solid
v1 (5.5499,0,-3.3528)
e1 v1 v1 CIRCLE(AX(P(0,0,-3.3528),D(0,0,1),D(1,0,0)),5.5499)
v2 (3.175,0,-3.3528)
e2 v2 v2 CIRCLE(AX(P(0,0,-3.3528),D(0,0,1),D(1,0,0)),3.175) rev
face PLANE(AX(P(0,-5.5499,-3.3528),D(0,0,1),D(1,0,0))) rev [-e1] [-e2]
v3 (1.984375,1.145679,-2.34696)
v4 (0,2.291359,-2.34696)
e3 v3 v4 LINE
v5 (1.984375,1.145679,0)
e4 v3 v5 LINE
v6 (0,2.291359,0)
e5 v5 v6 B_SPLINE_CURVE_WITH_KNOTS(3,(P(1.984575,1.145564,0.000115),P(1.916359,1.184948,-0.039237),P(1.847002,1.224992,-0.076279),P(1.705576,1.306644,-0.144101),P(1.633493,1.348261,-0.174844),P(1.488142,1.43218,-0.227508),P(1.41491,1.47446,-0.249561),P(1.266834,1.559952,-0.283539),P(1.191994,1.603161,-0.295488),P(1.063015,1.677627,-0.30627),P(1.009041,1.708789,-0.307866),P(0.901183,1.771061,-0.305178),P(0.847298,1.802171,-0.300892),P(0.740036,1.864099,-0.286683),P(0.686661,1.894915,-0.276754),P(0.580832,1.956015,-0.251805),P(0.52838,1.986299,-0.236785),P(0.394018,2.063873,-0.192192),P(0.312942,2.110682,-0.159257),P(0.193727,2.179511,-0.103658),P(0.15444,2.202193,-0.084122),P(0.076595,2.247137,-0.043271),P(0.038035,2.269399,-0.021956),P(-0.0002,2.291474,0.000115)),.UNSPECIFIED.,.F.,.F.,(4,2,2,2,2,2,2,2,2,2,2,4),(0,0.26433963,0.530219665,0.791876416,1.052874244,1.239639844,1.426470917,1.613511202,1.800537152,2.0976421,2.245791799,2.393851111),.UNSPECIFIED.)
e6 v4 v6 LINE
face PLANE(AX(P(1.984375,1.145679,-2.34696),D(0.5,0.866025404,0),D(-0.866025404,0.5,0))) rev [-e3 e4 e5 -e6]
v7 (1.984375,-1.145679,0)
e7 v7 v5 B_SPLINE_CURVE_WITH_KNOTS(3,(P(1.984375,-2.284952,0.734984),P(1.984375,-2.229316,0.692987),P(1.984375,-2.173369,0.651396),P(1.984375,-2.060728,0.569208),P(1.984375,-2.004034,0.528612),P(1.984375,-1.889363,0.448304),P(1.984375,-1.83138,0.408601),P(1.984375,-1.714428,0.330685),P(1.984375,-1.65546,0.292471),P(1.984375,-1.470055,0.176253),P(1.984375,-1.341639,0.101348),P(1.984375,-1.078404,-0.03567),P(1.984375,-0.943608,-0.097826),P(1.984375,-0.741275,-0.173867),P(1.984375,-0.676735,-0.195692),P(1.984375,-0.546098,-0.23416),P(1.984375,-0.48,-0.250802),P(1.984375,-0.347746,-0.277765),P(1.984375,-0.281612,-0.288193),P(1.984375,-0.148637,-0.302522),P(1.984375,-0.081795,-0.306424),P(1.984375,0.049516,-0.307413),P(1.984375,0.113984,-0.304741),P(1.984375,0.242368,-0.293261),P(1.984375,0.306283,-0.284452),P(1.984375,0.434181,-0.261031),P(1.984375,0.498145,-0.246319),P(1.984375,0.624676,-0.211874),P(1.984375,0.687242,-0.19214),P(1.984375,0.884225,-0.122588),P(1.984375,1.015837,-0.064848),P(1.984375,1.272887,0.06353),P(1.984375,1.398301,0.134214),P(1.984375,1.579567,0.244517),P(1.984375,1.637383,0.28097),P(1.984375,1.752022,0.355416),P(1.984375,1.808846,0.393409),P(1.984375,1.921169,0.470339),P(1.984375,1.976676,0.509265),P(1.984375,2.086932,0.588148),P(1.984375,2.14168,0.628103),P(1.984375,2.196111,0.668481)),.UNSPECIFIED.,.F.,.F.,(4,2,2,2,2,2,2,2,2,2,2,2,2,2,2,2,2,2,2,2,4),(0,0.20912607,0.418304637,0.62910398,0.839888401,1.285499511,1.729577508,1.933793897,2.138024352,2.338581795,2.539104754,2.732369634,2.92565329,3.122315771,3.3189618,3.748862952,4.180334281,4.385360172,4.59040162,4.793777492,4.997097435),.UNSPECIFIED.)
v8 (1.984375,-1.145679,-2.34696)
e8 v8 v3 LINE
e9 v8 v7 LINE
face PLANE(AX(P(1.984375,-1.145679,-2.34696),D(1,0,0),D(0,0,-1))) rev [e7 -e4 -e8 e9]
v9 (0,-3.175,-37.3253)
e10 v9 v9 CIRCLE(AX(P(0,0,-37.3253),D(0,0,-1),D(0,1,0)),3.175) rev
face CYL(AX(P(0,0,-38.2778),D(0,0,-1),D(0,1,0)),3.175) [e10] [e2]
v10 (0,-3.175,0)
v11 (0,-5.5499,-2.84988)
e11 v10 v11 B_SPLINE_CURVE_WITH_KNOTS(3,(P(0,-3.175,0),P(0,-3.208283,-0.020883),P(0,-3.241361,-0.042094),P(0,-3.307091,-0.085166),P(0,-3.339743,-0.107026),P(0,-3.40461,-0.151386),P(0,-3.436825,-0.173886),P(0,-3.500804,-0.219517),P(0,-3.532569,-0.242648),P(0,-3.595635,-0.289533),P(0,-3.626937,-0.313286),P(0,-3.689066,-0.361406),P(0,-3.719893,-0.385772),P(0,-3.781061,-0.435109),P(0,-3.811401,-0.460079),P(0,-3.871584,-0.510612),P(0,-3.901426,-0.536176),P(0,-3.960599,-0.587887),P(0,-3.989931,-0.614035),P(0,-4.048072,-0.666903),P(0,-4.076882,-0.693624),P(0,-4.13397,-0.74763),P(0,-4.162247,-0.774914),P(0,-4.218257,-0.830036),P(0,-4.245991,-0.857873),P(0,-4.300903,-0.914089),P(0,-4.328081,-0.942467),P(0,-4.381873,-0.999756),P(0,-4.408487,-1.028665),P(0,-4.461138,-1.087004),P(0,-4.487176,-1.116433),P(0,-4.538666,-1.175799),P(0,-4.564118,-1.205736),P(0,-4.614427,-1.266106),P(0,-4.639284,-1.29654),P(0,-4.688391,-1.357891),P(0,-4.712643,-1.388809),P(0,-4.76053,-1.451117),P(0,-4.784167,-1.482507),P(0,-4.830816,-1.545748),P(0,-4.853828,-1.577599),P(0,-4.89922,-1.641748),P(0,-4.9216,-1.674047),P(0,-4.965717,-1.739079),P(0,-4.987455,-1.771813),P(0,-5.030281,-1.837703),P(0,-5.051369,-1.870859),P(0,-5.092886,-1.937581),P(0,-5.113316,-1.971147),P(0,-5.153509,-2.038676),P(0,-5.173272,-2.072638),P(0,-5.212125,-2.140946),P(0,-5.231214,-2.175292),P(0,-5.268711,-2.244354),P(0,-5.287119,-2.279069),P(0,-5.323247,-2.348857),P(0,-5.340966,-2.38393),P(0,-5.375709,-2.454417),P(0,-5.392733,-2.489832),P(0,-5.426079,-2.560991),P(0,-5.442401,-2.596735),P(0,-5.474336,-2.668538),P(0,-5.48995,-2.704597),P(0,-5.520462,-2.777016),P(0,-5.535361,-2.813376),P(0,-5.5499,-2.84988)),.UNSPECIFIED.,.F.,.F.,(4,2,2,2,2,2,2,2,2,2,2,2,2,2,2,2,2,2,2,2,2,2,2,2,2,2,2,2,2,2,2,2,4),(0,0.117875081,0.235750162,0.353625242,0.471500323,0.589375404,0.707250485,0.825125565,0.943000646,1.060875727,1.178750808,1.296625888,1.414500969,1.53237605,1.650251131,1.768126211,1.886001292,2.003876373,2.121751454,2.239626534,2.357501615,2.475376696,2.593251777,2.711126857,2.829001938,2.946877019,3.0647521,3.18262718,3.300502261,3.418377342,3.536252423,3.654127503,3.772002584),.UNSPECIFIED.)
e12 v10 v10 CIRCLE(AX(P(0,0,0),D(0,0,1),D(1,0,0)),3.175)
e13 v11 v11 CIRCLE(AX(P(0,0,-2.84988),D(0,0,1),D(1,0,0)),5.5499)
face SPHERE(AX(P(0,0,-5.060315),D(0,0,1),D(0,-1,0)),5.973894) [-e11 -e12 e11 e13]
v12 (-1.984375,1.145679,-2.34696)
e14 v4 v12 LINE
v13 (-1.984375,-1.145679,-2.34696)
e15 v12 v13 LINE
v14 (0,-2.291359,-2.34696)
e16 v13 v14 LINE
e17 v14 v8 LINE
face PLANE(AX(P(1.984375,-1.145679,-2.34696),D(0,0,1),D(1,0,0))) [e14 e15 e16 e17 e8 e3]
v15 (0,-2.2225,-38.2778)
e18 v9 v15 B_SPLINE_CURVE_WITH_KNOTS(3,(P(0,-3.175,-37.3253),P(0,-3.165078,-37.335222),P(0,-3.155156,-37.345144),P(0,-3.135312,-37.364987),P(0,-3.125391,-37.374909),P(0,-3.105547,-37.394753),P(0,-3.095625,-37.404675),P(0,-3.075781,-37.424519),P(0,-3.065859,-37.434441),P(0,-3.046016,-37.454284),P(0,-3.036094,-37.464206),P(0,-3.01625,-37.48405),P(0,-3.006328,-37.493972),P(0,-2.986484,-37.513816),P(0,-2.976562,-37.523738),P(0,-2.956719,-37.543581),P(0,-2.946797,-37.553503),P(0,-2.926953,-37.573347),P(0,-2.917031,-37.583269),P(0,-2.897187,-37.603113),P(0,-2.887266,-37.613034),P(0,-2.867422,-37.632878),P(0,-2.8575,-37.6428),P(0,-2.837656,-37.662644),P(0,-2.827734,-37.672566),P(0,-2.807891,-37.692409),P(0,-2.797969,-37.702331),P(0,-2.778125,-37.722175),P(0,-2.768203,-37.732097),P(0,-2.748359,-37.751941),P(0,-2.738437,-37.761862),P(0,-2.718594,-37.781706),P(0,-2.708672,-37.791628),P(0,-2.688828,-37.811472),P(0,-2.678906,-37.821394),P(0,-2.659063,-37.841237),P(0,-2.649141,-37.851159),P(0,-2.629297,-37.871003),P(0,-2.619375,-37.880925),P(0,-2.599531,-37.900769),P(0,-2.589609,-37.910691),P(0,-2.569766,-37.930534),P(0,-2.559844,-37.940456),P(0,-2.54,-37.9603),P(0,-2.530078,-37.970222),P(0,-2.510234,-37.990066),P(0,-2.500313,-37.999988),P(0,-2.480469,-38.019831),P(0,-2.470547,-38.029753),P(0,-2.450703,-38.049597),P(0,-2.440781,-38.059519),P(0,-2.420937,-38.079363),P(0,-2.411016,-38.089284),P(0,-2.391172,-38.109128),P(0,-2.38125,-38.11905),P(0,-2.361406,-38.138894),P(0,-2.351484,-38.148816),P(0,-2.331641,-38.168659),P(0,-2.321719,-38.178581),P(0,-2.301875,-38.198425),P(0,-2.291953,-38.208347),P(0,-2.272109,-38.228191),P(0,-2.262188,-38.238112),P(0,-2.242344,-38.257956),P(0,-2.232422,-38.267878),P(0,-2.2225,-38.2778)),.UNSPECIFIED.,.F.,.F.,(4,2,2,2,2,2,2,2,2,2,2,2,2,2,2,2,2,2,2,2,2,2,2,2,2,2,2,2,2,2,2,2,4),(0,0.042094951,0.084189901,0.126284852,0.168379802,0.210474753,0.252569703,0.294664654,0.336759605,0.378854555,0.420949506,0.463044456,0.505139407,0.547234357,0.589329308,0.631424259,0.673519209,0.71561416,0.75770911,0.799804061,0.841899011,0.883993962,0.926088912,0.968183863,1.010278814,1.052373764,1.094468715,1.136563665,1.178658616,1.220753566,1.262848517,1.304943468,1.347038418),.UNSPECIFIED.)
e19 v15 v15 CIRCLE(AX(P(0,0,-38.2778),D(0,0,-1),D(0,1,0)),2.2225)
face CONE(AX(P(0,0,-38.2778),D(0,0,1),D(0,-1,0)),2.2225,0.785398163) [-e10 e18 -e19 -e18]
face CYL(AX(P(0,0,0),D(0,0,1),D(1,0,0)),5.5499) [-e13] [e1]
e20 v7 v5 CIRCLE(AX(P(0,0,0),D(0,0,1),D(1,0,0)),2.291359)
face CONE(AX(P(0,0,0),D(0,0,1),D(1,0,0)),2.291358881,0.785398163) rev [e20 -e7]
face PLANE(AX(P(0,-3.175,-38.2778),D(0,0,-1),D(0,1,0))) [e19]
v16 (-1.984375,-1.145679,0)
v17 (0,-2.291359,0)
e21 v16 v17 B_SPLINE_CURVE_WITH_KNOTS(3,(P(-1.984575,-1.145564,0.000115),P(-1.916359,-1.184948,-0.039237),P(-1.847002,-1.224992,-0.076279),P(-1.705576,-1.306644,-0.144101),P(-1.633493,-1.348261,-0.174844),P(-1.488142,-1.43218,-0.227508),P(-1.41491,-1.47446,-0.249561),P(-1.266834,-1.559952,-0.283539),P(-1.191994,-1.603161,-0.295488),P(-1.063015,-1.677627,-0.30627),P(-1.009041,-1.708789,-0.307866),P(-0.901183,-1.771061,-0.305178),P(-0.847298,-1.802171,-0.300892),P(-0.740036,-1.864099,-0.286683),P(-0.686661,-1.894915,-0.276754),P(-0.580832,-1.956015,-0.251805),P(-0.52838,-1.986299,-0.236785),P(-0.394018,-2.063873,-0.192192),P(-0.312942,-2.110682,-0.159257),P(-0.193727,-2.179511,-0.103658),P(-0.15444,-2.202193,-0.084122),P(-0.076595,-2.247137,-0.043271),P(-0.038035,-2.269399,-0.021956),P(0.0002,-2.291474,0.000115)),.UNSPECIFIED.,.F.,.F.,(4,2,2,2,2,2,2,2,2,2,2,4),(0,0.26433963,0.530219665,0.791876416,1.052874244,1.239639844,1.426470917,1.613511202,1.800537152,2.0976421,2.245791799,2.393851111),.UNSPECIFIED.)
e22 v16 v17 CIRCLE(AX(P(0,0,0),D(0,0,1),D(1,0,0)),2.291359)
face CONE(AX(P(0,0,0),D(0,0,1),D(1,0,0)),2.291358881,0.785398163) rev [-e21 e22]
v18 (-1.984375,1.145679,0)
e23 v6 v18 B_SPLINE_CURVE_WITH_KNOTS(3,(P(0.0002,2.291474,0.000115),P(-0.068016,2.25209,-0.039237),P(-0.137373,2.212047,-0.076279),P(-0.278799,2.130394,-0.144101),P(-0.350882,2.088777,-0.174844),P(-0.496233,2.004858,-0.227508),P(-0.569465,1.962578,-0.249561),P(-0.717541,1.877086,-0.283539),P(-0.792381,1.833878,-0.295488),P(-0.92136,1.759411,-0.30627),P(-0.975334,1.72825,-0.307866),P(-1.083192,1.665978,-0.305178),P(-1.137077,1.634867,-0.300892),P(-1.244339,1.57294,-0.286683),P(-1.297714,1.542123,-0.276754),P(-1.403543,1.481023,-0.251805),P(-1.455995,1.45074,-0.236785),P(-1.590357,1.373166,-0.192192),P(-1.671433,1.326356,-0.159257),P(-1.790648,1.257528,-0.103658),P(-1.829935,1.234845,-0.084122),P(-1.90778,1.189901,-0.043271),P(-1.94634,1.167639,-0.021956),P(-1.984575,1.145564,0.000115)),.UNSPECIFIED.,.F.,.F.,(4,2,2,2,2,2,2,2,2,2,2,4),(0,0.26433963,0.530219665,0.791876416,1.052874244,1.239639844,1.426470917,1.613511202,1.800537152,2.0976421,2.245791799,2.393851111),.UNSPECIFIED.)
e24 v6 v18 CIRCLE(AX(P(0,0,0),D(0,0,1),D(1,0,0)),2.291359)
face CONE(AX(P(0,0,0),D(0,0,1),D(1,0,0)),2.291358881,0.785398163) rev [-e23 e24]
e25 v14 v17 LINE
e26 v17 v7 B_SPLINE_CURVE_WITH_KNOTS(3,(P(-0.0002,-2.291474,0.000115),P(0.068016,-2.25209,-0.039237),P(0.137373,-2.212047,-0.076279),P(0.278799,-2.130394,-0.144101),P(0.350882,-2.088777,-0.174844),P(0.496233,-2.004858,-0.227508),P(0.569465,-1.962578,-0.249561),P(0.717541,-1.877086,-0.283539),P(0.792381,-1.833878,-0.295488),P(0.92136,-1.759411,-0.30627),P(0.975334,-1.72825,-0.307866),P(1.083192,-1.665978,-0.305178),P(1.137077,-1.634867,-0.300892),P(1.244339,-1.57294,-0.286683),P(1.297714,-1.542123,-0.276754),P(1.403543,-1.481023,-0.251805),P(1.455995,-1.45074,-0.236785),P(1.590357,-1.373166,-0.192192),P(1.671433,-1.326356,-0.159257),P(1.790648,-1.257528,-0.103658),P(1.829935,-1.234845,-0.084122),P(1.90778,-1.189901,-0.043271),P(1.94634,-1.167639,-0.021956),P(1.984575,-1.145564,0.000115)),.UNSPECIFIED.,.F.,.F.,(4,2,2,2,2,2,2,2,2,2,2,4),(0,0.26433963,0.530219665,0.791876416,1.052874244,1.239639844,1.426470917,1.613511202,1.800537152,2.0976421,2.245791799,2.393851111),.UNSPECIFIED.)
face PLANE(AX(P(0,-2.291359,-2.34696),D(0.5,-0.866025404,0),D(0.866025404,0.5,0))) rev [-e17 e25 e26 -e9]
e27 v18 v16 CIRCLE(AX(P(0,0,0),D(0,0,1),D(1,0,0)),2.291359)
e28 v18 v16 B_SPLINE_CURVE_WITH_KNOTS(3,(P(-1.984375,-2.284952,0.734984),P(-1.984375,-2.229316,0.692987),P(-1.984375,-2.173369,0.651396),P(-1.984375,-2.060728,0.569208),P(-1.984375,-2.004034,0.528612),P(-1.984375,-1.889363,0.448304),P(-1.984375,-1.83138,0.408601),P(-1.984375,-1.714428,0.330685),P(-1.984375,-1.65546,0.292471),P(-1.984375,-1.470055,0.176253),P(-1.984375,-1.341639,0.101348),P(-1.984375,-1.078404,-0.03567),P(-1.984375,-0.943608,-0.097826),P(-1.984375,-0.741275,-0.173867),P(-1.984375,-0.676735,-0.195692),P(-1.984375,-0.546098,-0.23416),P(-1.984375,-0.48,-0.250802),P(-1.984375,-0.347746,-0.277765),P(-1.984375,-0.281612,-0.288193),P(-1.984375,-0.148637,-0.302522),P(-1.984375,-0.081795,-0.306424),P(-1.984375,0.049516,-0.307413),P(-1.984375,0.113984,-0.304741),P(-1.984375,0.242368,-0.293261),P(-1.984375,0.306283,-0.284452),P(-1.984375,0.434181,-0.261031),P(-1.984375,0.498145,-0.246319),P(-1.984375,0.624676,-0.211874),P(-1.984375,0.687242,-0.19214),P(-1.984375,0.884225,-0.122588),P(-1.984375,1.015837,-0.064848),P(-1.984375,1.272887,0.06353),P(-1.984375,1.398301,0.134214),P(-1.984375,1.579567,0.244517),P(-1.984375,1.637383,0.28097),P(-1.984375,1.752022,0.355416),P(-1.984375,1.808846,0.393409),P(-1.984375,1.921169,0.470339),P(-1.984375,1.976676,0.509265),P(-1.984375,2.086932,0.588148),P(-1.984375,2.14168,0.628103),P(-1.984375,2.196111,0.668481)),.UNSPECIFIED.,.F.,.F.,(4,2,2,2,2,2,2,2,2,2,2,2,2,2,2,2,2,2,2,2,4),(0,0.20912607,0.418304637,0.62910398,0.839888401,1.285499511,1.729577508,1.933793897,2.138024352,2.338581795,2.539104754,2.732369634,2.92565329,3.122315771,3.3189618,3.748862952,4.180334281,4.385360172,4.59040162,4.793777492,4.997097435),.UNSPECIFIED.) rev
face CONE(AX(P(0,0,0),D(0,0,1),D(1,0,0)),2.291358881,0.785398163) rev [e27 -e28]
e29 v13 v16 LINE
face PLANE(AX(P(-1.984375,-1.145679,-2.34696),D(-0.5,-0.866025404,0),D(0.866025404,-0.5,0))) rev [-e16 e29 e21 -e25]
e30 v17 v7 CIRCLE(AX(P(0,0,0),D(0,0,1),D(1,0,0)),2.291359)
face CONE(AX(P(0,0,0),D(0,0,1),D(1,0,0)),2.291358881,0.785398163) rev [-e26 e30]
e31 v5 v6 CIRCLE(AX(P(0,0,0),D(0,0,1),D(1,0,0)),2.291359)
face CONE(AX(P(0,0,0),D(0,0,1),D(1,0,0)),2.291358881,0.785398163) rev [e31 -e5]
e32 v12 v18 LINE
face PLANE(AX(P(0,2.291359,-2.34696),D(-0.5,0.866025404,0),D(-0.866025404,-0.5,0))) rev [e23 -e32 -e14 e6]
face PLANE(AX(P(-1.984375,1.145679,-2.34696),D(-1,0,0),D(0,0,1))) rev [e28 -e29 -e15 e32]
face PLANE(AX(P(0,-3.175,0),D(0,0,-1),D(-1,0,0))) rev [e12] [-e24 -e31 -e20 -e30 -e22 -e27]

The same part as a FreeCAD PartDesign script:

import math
import FreeCAD as App
import Part
import Sketcher

V = App.Vector
Q = App.Units.Quantity


def edges_at(feature, points):
    """Names of the edges that pass closest to the given points."""
    edges = feature.Shape.Edges
    near = lambda p: min(range(len(edges)), key=lambda i: edges[i].distToShape(Part.Vertex(*p))[0])
    return sorted({f"Edge{near(p) + 1}" for p in points})

doc = App.newDocument("Part")
params = doc.addObject("Spreadsheet::Sheet", "Params")
for row, (alias, value) in enumerate([
    ("sketch1_width", "0.125 in"),
    ("sketch1_height", "1.375 in"),
    ("revolution_angle", "360 deg"),
    ("chamfer_size", "0.0375 in"),
    ("sketch2_width", "0.125 in"),
    ("sketch2_height", "0.132 in"),
    ("revolution2_angle", "360 deg"),
    ("pocket1_length", "0.0924 in"),
    ("groove_angle", "360 deg"),
], start=1):
    params.set(f"A{row}", alias)
    params.set(f"B{row}", "=" + value)
    params.setAlias(f"B{row}", alias)

body = doc.addObject("PartDesign::Body", "Body")

sketch1 = doc.addObject("Sketcher::SketchObject", "Sketch")
body.addObject(sketch1)
sketch1.AttachmentSupport = (doc.YZ_Plane, [""])
sketch1.MapMode = "FlatFace"
sketch1.addGeometry(Part.LineSegment(V(3.2, -3.4, 0), V(0, -3.4, 0)), False)
sketch1.addGeometry(Part.LineSegment(V(0, -3.4, 0), V(0, -38.3, 0)), False)
sketch1.addGeometry(Part.LineSegment(V(0, -38.3, 0), V(3.2, -38.3, 0)), False)
sketch1.addGeometry(Part.LineSegment(V(3.2, -38.3, 0), V(3.2, -3.4, 0)), False)
sketch1.addConstraint(Sketcher.Constraint("Coincident", 0, 2, 1, 1))
sketch1.addConstraint(Sketcher.Constraint("Coincident", 1, 2, 2, 1))
sketch1.addConstraint(Sketcher.Constraint("Coincident", 2, 2, 3, 1))
sketch1.addConstraint(Sketcher.Constraint("Coincident", 3, 2, 0, 1))
sketch1.addConstraint(Sketcher.Constraint("Horizontal", 0))
sketch1.addConstraint(Sketcher.Constraint("Vertical", 1))
sketch1.addConstraint(Sketcher.Constraint("Horizontal", 2))
sketch1.addConstraint(Sketcher.Constraint("Vertical", 3))
sketch1.addConstraint(Sketcher.Constraint("PointOnObject", 0, 2, -2))
sketch1.addConstraint(Sketcher.Constraint("DistanceX", 0, 2, 0, 1, Q("0.125 in")))
sketch1.addConstraint(Sketcher.Constraint("DistanceY", 1, 2, 1, 1, Q("1.375 in")))
sketch1.addConstraint(Sketcher.Constraint("DistanceY", 0, 2, -1, 1, Q("0.132 in")))
sketch1.setExpression("Constraints[9]", "Params.sketch1_width")
sketch1.setExpression("Constraints[10]", "Params.sketch1_height")
revolution = doc.addObject("PartDesign::Revolution", "Revolution")
body.addObject(revolution)
revolution.Profile = sketch1
revolution.ReferenceAxis = (sketch1, ["V_Axis"])
revolution.setExpression("Angle", "Params.revolution_angle")
doc.recompute()

chamfer = doc.addObject("PartDesign::Chamfer", "Chamfer")
body.addObject(chamfer)
chamfer.Base = (revolution, edges_at(revolution, [(0, -3.175, -38.278)]))
chamfer.setExpression("Size", "Params.chamfer_size")

sketch2 = doc.addObject("Sketcher::SketchObject", "Sketch001")
body.addObject(sketch2)
sketch2.AttachmentSupport = (doc.YZ_Plane, [""])
sketch2.MapMode = "FlatFace"
sketch2.addGeometry(Part.LineSegment(V(5.5, -3.4, 0), V(5.5, -2.8, 0)), False)
sketch2.addGeometry(Part.ArcOfCircle(Part.Circle(V(0, -5.1, 0), V(0, 0, 1), 6), math.radians(22), math.radians(58)), False)
sketch2.addGeometry(Part.LineSegment(V(3.2, 0, 0), V(0, 0, 0)), False)
sketch2.addGeometry(Part.LineSegment(V(0, 0, 0), V(0, -3.4, 0)), False)
sketch2.addGeometry(Part.LineSegment(V(0, -3.4, 0), V(5.5, -3.4, 0)), False)
sketch2.addConstraint(Sketcher.Constraint("Coincident", 0, 2, 1, 1))
sketch2.addConstraint(Sketcher.Constraint("Coincident", 1, 2, 2, 1))
sketch2.addConstraint(Sketcher.Constraint("Coincident", 2, 2, 3, 1))
sketch2.addConstraint(Sketcher.Constraint("Coincident", 3, 2, 4, 1))
sketch2.addConstraint(Sketcher.Constraint("Coincident", 4, 2, 0, 1))
sketch2.addConstraint(Sketcher.Constraint("Vertical", 0))
sketch2.addConstraint(Sketcher.Constraint("Horizontal", 2))
sketch2.addConstraint(Sketcher.Constraint("Vertical", 3))
sketch2.addConstraint(Sketcher.Constraint("Horizontal", 4))
sketch2.addConstraint(Sketcher.Constraint("Coincident", 2, 2, -1, 1))
sketch2.addConstraint(Sketcher.Constraint("PointOnObject", 1, 3, -2))
sketch2.addConstraint(Sketcher.Constraint("DistanceX", 2, 2, 2, 1, Q("0.125 in")))
sketch2.addConstraint(Sketcher.Constraint("DistanceY", 3, 2, 3, 1, Q("0.132 in")))
sketch2.addConstraint(Sketcher.Constraint("DistanceX", 4, 1, 4, 2, Q("0.2185 in")))
sketch2.addConstraint(Sketcher.Constraint("DistanceY", 0, 1, 0, 2, Q("0.0198 in")))
sketch2.setExpression("Constraints[11]", "Params.sketch2_width")
sketch2.setExpression("Constraints[12]", "Params.sketch2_height")
revolution2 = doc.addObject("PartDesign::Revolution", "Revolution001")
body.addObject(revolution2)
revolution2.Profile = sketch2
revolution2.ReferenceAxis = (sketch2, ["V_Axis"])
revolution2.setExpression("Angle", "Params.revolution2_angle")

sketch3 = doc.addObject("Sketcher::SketchObject", "Sketch002")
body.addObject(sketch3)
sketch3.AttachmentSupport = (doc.XY_Plane, [""])
sketch3.MapMode = "FlatFace"
sketch3.addGeometry(Part.LineSegment(V(2, -1.1, 0), V(2, 1.1, 0)), False)
sketch3.addGeometry(Part.LineSegment(V(2, 1.1, 0), V(0, 2.3, 0)), False)
sketch3.addGeometry(Part.LineSegment(V(0, 2.3, 0), V(-2, 1.1, 0)), False)
sketch3.addGeometry(Part.LineSegment(V(-2, 1.1, 0), V(-2, -1.1, 0)), False)
sketch3.addGeometry(Part.LineSegment(V(-2, -1.1, 0), V(0, -2.3, 0)), False)
sketch3.addGeometry(Part.LineSegment(V(0, -2.3, 0), V(2, -1.1, 0)), False)
sketch3.addConstraint(Sketcher.Constraint("Coincident", 0, 2, 1, 1))
sketch3.addConstraint(Sketcher.Constraint("Coincident", 1, 2, 2, 1))
sketch3.addConstraint(Sketcher.Constraint("Coincident", 2, 2, 3, 1))
sketch3.addConstraint(Sketcher.Constraint("Coincident", 3, 2, 4, 1))
sketch3.addConstraint(Sketcher.Constraint("Coincident", 4, 2, 5, 1))
sketch3.addConstraint(Sketcher.Constraint("Coincident", 5, 2, 0, 1))
sketch3.addConstraint(Sketcher.Constraint("Vertical", 0))
sketch3.addConstraint(Sketcher.Constraint("Vertical", 3))
sketch3.addConstraint(Sketcher.Constraint("Symmetric", 0, 2, 3, 2, -1, 1))
sketch3.addConstraint(Sketcher.Constraint("Symmetric", 1, 2, 4, 2, -1, 1))
sketch3.addConstraint(Sketcher.Constraint("PointOnObject", 1, 2, -2))
sketch3.addConstraint(Sketcher.Constraint("Parallel", 2, 5))
sketch3.addConstraint(Sketcher.Constraint("Horizontal", 0, 2, 2, 2))
sketch3.addConstraint(Sketcher.Constraint("Angle", 1, Q("150 deg")))
sketch3.addConstraint(Sketcher.Constraint("DistanceX", -1, 1, 0, 2, Q("0.078125 in")))
sketch3.addConstraint(Sketcher.Constraint("DistanceY", 0, 1, 0, 2, Q("2.291359 mm")))
pocket1 = doc.addObject("PartDesign::Pocket", "Pocket")
body.addObject(pocket1)
pocket1.Profile = sketch3
pocket1.setExpression("Length", "Params.pocket1_length")

sketch4 = doc.addObject("Sketcher::SketchObject", "Sketch003")
body.addObject(sketch4)
sketch4.AttachmentSupport = (doc.YZ_Plane, [""])
sketch4.MapMode = "FlatFace"
sketch4.addGeometry(Part.LineSegment(V(0, 0, 0), V(-2.3, 0, 0)), False)
sketch4.addGeometry(Part.LineSegment(V(-2.3, 0, 0), V(0, -2.3, 0)), False)
sketch4.addGeometry(Part.LineSegment(V(0, -2.3, 0), V(0, 0, 0)), False)
sketch4.addConstraint(Sketcher.Constraint("Coincident", 0, 2, 1, 1))
sketch4.addConstraint(Sketcher.Constraint("Coincident", 1, 2, 2, 1))
sketch4.addConstraint(Sketcher.Constraint("Coincident", 2, 2, 0, 1))
sketch4.addConstraint(Sketcher.Constraint("Horizontal", 0))
sketch4.addConstraint(Sketcher.Constraint("Vertical", 2))
sketch4.addConstraint(Sketcher.Constraint("Coincident", 2, 2, -1, 1))
sketch4.addConstraint(Sketcher.Constraint("Equal", 0, 2))
sketch4.addConstraint(Sketcher.Constraint("DistanceX", 0, 2, 0, 1, Q("2.291359 mm")))
groove = doc.addObject("PartDesign::Groove", "Groove")
body.addObject(groove)
groove.Profile = sketch4
groove.ReferenceAxis = (sketch4, ["V_Axis"])
groove.setExpression("Angle", "Params.groove_angle")

doc.recompute()
